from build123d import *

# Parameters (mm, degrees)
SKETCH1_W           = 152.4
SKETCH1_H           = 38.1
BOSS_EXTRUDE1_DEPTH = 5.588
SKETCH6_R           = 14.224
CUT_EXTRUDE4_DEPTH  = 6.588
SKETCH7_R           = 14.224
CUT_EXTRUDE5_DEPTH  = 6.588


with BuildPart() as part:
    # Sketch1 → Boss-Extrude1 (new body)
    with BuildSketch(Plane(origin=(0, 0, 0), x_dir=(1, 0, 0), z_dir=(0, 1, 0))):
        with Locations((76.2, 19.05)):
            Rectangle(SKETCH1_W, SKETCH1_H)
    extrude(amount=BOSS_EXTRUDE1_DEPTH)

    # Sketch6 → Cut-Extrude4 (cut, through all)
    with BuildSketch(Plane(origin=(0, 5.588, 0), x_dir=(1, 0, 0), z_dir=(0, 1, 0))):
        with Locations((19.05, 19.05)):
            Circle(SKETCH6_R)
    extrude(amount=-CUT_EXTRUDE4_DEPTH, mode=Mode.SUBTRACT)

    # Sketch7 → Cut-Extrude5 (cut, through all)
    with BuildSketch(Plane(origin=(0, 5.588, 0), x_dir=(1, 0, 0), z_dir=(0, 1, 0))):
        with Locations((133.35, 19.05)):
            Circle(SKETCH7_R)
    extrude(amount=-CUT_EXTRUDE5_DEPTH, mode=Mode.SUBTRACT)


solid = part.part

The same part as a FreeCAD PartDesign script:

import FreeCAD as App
import Part
import Sketcher
from FreeCAD import Vector
Q = App.Units.Quantity


def add_polygon(sketch, points):
    """Adds a closed chain of lines whose ends are joined by coincident constraints."""
    first, n = sketch.GeometryCount, len(points)
    for a, b in zip(points, points[1:] + points[:1]):
        sketch.addGeometry(Part.LineSegment(App.Vector(*a, 0), App.Vector(*b, 0)), False)
    for i in range(n):
        sketch.addConstraint(Sketcher.Constraint("Coincident", first + i, 2, first + (i + 1) % n, 1))

doc = App.newDocument("Part")
body = doc.addObject("PartDesign::Body", "Body")

sketch1 = body.newObject("Sketcher::SketchObject", "Sketch")
sketch1.AttachmentSupport = (doc.getObject("XZ_Plane"), [""])
sketch1.MapMode = "FlatFace"
add_polygon(sketch1, [(0, -38), (0, 0), (152, 0), (152, -38)])
sketch1.addConstraint([
    Sketcher.Constraint("Vertical", 0),
    Sketcher.Constraint("Horizontal", 1),
    Sketcher.Constraint("Vertical", 2),
    Sketcher.Constraint("Horizontal", 3),
    Sketcher.Constraint("Coincident", 0, 2, -1, 1),
    Sketcher.Constraint("DistanceX", 1, 1, 1, 2, Q("6 in")),
    Sketcher.Constraint("DistanceY", 0, 1, 0, 2, Q("1.5 in")),
])
pad1 = body.newObject("PartDesign::Pad", "Pad")
pad1.Profile = sketch1
pad1.Length = Q("0.22 in")
pad1.Reversed = True

sketch2 = body.newObject("Sketcher::SketchObject", "Sketch001")
sketch2.AttachmentSupport = (doc.getObject("XZ_Plane"), [""])
sketch2.MapMode = "FlatFace"
sketch2.AttachmentOffset = App.Placement(Vector(0, 0, -0.22 * 25.4), App.Rotation())
sketch2.addGeometry(Part.Circle(Vector(19, -19, 0), Vector(0, 0, 1), 14), False)
sketch2.addConstraint([
    Sketcher.Constraint("Diameter", 0, Q("1.12 in")),
    Sketcher.Constraint("DistanceX", -1, 1, 0, 3, Q("0.75 in")),
    Sketcher.Constraint("DistanceY", 0, 3, -1, 1, Q("0.75 in")),
])
pocket1 = body.newObject("PartDesign::Pocket", "Pocket")
pocket1.Profile = sketch2
pocket1.Type = "ThroughAll"
pocket1.Reversed = True

sketch3 = body.newObject("Sketcher::SketchObject", "Sketch002")
sketch3.AttachmentSupport = (doc.getObject("XZ_Plane"), [""])
sketch3.MapMode = "FlatFace"
sketch3.AttachmentOffset = App.Placement(Vector(0, 0, -0.22 * 25.4), App.Rotation())
sketch3.addGeometry(Part.Circle(Vector(133, -19, 0), Vector(0, 0, 1), 14), False)
sketch3.addConstraint([
    Sketcher.Constraint("Diameter", 0, Q("1.12 in")),
    Sketcher.Constraint("DistanceX", -1, 1, 0, 3, Q("5.25 in")),
    Sketcher.Constraint("DistanceY", 0, 3, -1, 1, Q("0.75 in")),
])
pocket2 = body.newObject("PartDesign::Pocket", "Pocket001")
pocket2.Profile = sketch3
pocket2.Type = "ThroughAll"
pocket2.Reversed = True

doc.recompute()
